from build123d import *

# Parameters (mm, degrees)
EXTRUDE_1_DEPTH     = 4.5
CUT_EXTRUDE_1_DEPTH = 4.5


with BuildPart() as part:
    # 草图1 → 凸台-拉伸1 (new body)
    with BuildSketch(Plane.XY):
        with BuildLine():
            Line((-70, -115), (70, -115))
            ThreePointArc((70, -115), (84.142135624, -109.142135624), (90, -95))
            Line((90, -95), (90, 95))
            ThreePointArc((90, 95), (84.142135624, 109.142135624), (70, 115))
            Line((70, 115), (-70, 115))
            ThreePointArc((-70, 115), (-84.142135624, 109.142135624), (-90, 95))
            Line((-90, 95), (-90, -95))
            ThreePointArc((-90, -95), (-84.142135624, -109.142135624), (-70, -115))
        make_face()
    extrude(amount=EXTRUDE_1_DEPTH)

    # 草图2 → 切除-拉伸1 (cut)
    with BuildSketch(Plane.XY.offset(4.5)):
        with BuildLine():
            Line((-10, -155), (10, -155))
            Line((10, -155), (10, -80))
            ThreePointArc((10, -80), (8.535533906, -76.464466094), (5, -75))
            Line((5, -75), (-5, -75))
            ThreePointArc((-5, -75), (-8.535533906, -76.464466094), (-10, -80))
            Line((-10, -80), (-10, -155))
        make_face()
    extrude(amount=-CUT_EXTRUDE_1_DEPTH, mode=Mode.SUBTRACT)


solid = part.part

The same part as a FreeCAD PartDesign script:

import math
import FreeCAD as App
import Part
import Sketcher

V = App.Vector
Q = App.Units.Quantity

doc = App.newDocument("Part")
params = doc.addObject("Spreadsheet::Sheet", "Params")
for row, (alias, value) in enumerate([
    ("sketch1_radius", "20 mm"),
    ("sketch1_width", "140 mm"),
    ("sketch1_height", "190 mm"),
    ("pad1_length", "4.5 mm"),
    ("sketch2_radius", "5 mm"),
    ("sketch2_width", "20 mm"),
    ("sketch2_height", "75 mm"),
    ("pocket1_length", "4.5 mm"),
], start=1):
    params.set(f"A{row}", alias)
    params.set(f"B{row}", "=" + value)
    params.setAlias(f"B{row}", alias)

body = doc.addObject("PartDesign::Body", "Body")

# Sketch on XY plane
sketch1 = body.newObject("Sketcher::SketchObject", "Sketch")
sketch1.AttachmentSupport = (doc.getObject("XY_Plane"), [""])
sketch1.MapMode = "FlatFace"
sketch1.addGeometry(Part.LineSegment(V(-70, -115, 0), V(70, -115, 0)), False)
sketch1.addGeometry(Part.ArcOfCircle(Part.Circle(V(70, -95, 0), V(0, 0, 1), 20), math.radians(-90), math.radians(0)), False)
sketch1.addGeometry(Part.LineSegment(V(90, -95, 0), V(90, 95, 0)), False)
sketch1.addGeometry(Part.ArcOfCircle(Part.Circle(V(70, 95, 0), V(0, 0, 1), 20), math.radians(0), math.radians(90)), False)
sketch1.addGeometry(Part.LineSegment(V(70, 115, 0), V(-70, 115, 0)), False)
sketch1.addGeometry(Part.ArcOfCircle(Part.Circle(V(-70, 95, 0), V(0, 0, 1), 20), math.radians(90), math.radians(180)), False)
sketch1.addGeometry(Part.LineSegment(V(-90, 95, 0), V(-90, -95, 0)), False)
sketch1.addGeometry(Part.ArcOfCircle(Part.Circle(V(-70, -95, 0), V(0, 0, 1), 20), math.radians(180), math.radians(270)), False)
sketch1.addConstraint(Sketcher.Constraint("Tangent", 0, 2, 1, 1))
sketch1.addConstraint(Sketcher.Constraint("Tangent", 1, 2, 2, 1))
sketch1.addConstraint(Sketcher.Constraint("Tangent", 2, 2, 3, 1))
sketch1.addConstraint(Sketcher.Constraint("Tangent", 3, 2, 4, 1))
sketch1.addConstraint(Sketcher.Constraint("Tangent", 4, 2, 5, 1))
sketch1.addConstraint(Sketcher.Constraint("Tangent", 5, 2, 6, 1))
sketch1.addConstraint(Sketcher.Constraint("Tangent", 6, 2, 7, 1))
sketch1.addConstraint(Sketcher.Constraint("Tangent", 7, 2, 0, 1))
sketch1.addConstraint(Sketcher.Constraint("Horizontal", 0))
sketch1.addConstraint(Sketcher.Constraint("Vertical", 2))
sketch1.addConstraint(Sketcher.Constraint("Horizontal", 4))
sketch1.addConstraint(Sketcher.Constraint("Vertical", 6))
sketch1.addConstraint(Sketcher.Constraint("Equal", 1, 3))
sketch1.addConstraint(Sketcher.Constraint("Equal", 3, 5))
sketch1.addConstraint(Sketcher.Constraint("Equal", 5, 7))
sketch1.addConstraint(Sketcher.Constraint("Symmetric", 1, 3, 5, 3, -1, 1))
sketch1.addConstraint(Sketcher.Constraint("Radius", 1, Q("20 mm")))
sketch1.addConstraint(Sketcher.Constraint("DistanceX", 0, 1, 0, 2, Q("140 mm")))
sketch1.addConstraint(Sketcher.Constraint("DistanceY", 2, 1, 2, 2, Q("190 mm")))
sketch1.setExpression("Constraints[16]", "Params.sketch1_radius")
sketch1.setExpression("Constraints[17]", "Params.sketch1_width")
sketch1.setExpression("Constraints[18]", "Params.sketch1_height")
pad1 = body.newObject("PartDesign::Pad", "Pad")
pad1.Profile = sketch1
pad1.setExpression("Length", "Params.pad1_length")

# Sketch on XY plane
sketch2 = body.newObject("Sketcher::SketchObject", "Sketch001")
sketch2.AttachmentSupport = (doc.getObject("XY_Plane"), [""])
sketch2.MapMode = "FlatFace"
sketch2.AttachmentOffset = App.Placement(V(0, 0, 4.5), App.Rotation())
sketch2.addGeometry(Part.LineSegment(V(-10, -155, 0), V(10, -155, 0)), False)
sketch2.addGeometry(Part.LineSegment(V(10, -155, 0), V(10, -80, 0)), False)
sketch2.addGeometry(Part.ArcOfCircle(Part.Circle(V(5, -80, 0), V(0, 0, 1), 5), math.radians(0), math.radians(90)), False)
sketch2.addGeometry(Part.LineSegment(V(5, -75, 0), V(-5, -75, 0)), False)
sketch2.addGeometry(Part.ArcOfCircle(Part.Circle(V(-5, -80, 0), V(0, 0, 1), 5), math.radians(90), math.radians(180)), False)
sketch2.addGeometry(Part.LineSegment(V(-10, -80, 0), V(-10, -155, 0)), False)
sketch2.addConstraint(Sketcher.Constraint("Coincident", 0, 2, 1, 1))
sketch2.addConstraint(Sketcher.Constraint("Tangent", 1, 2, 2, 1))
sketch2.addConstraint(Sketcher.Constraint("Tangent", 2, 2, 3, 1))
sketch2.addConstraint(Sketcher.Constraint("Tangent", 3, 2, 4, 1))
sketch2.addConstraint(Sketcher.Constraint("Tangent", 4, 2, 5, 1))
sketch2.addConstraint(Sketcher.Constraint("Coincident", 5, 2, 0, 1))
sketch2.addConstraint(Sketcher.Constraint("Horizontal", 0))
sketch2.addConstraint(Sketcher.Constraint("Vertical", 1))
sketch2.addConstraint(Sketcher.Constraint("Horizontal", 3))
sketch2.addConstraint(Sketcher.Constraint("Vertical", 5))
sketch2.addConstraint(Sketcher.Constraint("Equal", 2, 4))
sketch2.addConstraint(Sketcher.Constraint("Radius", 2, Q("5 mm")))
sketch2.addConstraint(Sketcher.Constraint("DistanceX", 0, 1, 0, 2, Q("20 mm")))
sketch2.addConstraint(Sketcher.Constraint("DistanceY", 1, 1, 1, 2, Q("75 mm")))
sketch2.addConstraint(Sketcher.Constraint("DistanceX", -1, 1, 2, 3, Q("5 mm")))
sketch2.addConstraint(Sketcher.Constraint("DistanceY", 2, 3, -1, 1, Q("80 mm")))
sketch2.setExpression("Constraints[11]", "Params.sketch2_radius")
sketch2.setExpression("Constraints[12]", "Params.sketch2_width")
sketch2.setExpression("Constraints[13]", "Params.sketch2_height")
pocket1 = body.newObject("PartDesign::Pocket", "Pocket")
pocket1.Profile = sketch2
pocket1.setExpression("Length", "Params.pocket1_length")

doc.recompute()
